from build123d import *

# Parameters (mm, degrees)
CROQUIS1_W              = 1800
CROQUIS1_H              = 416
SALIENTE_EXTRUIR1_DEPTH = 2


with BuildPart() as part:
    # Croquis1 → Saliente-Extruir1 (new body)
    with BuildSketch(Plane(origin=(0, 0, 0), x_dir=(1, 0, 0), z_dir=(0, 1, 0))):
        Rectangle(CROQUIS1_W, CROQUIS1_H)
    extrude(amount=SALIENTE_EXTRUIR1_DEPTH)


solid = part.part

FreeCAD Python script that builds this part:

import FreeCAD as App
import Part
import Sketcher
from FreeCAD import Vector


def add_polygon(sketch, points):
    """Adds a closed chain of lines whose ends are joined by coincident constraints."""
    first, n = sketch.GeometryCount, len(points)
    for a, b in zip(points, points[1:] + points[:1]):
        sketch.addGeometry(Part.LineSegment(App.Vector(*a, 0), App.Vector(*b, 0)), False)
    for i in range(n):
        sketch.addConstraint(Sketcher.Constraint("Coincident", first + i, 2, first + (i + 1) % n, 1))

doc = App.newDocument("Part")
body = doc.addObject("PartDesign::Body", "Body")

# Sketch on XZ plane
sketch1 = doc.addObject("Sketcher::SketchObject", "Sketch")
body.addObject(sketch1)
sketch1.AttachmentSupport = (doc.XZ_Plane, [""])
sketch1.MapMode = "FlatFace"
add_polygon(sketch1, [(-900, -208), (-900, 208), (900, 208), (900, -208)])  # lines 0-3
sketch1.addConstraint(Sketcher.Constraint("Vertical", 0))
sketch1.addConstraint(Sketcher.Constraint("Horizontal", 1))
sketch1.addConstraint(Sketcher.Constraint("Vertical", 2))
sketch1.addConstraint(Sketcher.Constraint("Horizontal", 3))
sketch1.addConstraint(Sketcher.Constraint("Symmetric", 0, 2, 2, 2, -1, 1))
sketch1.addConstraint(Sketcher.Constraint("DistanceX", 1, 1, 1, 2, 1800.0))
sketch1.addConstraint(Sketcher.Constraint("DistanceY", 0, 1, 0, 2, 416.0))
pad1 = doc.addObject("PartDesign::Pad", "Pad")
body.addObject(pad1)
pad1.Profile = sketch1
pad1.Length = 2
pad1.Reversed = True

doc.recompute()
